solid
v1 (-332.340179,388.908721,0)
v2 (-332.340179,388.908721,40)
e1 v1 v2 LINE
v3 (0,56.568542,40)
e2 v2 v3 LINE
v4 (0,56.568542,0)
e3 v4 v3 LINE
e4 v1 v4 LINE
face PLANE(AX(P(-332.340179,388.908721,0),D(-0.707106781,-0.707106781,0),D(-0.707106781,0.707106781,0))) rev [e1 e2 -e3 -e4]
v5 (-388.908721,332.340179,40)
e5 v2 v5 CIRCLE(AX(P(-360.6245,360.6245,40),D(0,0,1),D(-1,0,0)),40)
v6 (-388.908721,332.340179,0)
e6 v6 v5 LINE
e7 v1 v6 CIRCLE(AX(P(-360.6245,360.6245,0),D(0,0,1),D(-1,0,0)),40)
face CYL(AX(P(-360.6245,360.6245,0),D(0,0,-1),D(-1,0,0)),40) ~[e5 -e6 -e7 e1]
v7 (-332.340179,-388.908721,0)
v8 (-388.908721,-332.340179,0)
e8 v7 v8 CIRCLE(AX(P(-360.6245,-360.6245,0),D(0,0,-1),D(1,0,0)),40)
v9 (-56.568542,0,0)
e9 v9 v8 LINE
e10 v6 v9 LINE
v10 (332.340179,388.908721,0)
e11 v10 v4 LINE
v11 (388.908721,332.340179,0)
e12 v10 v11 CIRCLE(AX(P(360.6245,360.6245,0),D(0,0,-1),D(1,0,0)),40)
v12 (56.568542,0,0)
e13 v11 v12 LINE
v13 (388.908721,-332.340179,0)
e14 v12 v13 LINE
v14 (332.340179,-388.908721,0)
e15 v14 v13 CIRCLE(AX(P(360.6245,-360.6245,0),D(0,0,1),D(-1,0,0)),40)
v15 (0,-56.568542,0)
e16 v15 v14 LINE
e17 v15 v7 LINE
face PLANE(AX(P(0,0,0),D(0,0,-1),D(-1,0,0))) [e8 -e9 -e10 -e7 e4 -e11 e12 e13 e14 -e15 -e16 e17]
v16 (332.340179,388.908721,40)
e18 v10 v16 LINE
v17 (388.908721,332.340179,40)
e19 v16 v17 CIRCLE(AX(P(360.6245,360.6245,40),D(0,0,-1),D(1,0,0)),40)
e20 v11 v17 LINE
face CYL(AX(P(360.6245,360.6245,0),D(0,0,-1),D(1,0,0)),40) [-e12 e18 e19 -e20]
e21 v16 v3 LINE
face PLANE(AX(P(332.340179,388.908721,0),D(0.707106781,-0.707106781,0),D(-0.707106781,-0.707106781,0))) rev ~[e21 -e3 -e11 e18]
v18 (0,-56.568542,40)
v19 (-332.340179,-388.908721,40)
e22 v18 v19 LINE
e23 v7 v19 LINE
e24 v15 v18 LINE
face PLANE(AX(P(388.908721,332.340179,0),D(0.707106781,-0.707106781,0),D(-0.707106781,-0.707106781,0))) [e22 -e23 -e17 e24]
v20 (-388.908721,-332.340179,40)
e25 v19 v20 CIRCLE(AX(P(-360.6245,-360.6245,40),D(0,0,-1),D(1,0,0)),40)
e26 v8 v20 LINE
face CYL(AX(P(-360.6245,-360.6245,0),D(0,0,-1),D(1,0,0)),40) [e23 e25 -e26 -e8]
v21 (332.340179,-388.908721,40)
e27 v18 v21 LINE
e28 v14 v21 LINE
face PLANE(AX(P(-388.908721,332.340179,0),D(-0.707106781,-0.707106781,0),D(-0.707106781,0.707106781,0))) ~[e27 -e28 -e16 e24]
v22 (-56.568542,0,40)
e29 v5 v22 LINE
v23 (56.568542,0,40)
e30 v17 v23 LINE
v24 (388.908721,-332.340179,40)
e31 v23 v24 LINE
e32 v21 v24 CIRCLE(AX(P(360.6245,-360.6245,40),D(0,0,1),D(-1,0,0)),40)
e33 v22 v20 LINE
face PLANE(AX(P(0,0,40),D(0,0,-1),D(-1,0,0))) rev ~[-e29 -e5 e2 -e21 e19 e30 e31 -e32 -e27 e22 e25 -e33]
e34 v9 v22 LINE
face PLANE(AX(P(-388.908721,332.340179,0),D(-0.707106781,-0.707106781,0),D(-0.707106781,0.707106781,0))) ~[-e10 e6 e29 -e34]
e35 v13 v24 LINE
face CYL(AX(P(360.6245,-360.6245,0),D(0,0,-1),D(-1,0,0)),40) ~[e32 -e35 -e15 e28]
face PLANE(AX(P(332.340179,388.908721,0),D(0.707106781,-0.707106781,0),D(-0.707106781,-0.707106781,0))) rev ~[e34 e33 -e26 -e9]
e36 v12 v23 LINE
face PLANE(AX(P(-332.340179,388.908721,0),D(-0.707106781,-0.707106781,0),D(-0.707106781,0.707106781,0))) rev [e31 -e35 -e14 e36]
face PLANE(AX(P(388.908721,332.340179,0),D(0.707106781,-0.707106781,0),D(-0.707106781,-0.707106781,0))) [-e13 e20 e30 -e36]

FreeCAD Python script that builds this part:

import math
import FreeCAD as App
import Part
import Sketcher
from FreeCAD import Vector
Q = App.Units.Quantity

doc = App.newDocument("Part")
params = doc.addObject("Spreadsheet::Sheet", "Params")
for row, (alias, value) in enumerate([
    ("sketch1_radius", "40 mm"),
    ("sketch1_length", "1020 mm"),
    ("pad1_length", "40 mm"),
], start=1):
    params.set(f"A{row}", alias)
    params.set(f"B{row}", "=" + value)
    params.setAlias(f"B{row}", alias)

body = doc.addObject("PartDesign::Body", "Body")

sketch1 = doc.addObject("Sketcher::SketchObject", "Sketch")
body.addObject(sketch1)
sketch1.AttachmentSupport = (doc.XY_Plane, [""])
sketch1.MapMode = "FlatFace"
sketch1.addGeometry(Part.LineSegment(Vector(-332, -389, 0), Vector(389, 332, 0)), False)
sketch1.addGeometry(Part.ArcOfCircle(Part.Circle(Vector(361, 361, 0), Vector(0, 0, 1), 40), math.radians(-45), math.radians(135)), False)
sketch1.addGeometry(Part.LineSegment(Vector(332, 389, 0), Vector(-389, -332, 0)), False)
sketch1.addGeometry(Part.ArcOfCircle(Part.Circle(Vector(-361, -361, 0), Vector(0, 0, 1), 40), math.radians(135), math.radians(315)), False)
sketch1.addConstraint(Sketcher.Constraint("Tangent", 0, 2, 1, 1))
sketch1.addConstraint(Sketcher.Constraint("Tangent", 1, 2, 2, 1))
sketch1.addConstraint(Sketcher.Constraint("Tangent", 2, 2, 3, 1))
sketch1.addConstraint(Sketcher.Constraint("Tangent", 3, 2, 0, 1))
sketch1.addConstraint(Sketcher.Constraint("Equal", 1, 3))
sketch1.addConstraint(Sketcher.Constraint("Symmetric", 1, 3, 3, 3, -1, 1))
sketch1.addConstraint(Sketcher.Constraint("Radius", 1, Q("40 mm")))
sketch1.addConstraint(Sketcher.Constraint("Angle", 0, Q("45 deg")))
sketch1.addConstraint(Sketcher.Constraint("Distance", 0, Q("1020 mm")))
sketch1.setExpression("Constraints[6]", "Params.sketch1_radius")
sketch1.setExpression("Constraints[8]", "Params.sketch1_length")
pad1 = doc.addObject("PartDesign::Pad", "Pad")
body.addObject(pad1)
pad1.Profile = sketch1
pad1.setExpression("Length", "Params.pad1_length")
doc.recompute()

mirrored = doc.addObject("PartDesign::Mirrored", "Mirrored")
body.addObject(mirrored)
mirrored.Originals = [pad1]
mirrored.MirrorPlane = (doc.YZ_Plane, [""])
body.Tip = mirrored

doc.recompute()
